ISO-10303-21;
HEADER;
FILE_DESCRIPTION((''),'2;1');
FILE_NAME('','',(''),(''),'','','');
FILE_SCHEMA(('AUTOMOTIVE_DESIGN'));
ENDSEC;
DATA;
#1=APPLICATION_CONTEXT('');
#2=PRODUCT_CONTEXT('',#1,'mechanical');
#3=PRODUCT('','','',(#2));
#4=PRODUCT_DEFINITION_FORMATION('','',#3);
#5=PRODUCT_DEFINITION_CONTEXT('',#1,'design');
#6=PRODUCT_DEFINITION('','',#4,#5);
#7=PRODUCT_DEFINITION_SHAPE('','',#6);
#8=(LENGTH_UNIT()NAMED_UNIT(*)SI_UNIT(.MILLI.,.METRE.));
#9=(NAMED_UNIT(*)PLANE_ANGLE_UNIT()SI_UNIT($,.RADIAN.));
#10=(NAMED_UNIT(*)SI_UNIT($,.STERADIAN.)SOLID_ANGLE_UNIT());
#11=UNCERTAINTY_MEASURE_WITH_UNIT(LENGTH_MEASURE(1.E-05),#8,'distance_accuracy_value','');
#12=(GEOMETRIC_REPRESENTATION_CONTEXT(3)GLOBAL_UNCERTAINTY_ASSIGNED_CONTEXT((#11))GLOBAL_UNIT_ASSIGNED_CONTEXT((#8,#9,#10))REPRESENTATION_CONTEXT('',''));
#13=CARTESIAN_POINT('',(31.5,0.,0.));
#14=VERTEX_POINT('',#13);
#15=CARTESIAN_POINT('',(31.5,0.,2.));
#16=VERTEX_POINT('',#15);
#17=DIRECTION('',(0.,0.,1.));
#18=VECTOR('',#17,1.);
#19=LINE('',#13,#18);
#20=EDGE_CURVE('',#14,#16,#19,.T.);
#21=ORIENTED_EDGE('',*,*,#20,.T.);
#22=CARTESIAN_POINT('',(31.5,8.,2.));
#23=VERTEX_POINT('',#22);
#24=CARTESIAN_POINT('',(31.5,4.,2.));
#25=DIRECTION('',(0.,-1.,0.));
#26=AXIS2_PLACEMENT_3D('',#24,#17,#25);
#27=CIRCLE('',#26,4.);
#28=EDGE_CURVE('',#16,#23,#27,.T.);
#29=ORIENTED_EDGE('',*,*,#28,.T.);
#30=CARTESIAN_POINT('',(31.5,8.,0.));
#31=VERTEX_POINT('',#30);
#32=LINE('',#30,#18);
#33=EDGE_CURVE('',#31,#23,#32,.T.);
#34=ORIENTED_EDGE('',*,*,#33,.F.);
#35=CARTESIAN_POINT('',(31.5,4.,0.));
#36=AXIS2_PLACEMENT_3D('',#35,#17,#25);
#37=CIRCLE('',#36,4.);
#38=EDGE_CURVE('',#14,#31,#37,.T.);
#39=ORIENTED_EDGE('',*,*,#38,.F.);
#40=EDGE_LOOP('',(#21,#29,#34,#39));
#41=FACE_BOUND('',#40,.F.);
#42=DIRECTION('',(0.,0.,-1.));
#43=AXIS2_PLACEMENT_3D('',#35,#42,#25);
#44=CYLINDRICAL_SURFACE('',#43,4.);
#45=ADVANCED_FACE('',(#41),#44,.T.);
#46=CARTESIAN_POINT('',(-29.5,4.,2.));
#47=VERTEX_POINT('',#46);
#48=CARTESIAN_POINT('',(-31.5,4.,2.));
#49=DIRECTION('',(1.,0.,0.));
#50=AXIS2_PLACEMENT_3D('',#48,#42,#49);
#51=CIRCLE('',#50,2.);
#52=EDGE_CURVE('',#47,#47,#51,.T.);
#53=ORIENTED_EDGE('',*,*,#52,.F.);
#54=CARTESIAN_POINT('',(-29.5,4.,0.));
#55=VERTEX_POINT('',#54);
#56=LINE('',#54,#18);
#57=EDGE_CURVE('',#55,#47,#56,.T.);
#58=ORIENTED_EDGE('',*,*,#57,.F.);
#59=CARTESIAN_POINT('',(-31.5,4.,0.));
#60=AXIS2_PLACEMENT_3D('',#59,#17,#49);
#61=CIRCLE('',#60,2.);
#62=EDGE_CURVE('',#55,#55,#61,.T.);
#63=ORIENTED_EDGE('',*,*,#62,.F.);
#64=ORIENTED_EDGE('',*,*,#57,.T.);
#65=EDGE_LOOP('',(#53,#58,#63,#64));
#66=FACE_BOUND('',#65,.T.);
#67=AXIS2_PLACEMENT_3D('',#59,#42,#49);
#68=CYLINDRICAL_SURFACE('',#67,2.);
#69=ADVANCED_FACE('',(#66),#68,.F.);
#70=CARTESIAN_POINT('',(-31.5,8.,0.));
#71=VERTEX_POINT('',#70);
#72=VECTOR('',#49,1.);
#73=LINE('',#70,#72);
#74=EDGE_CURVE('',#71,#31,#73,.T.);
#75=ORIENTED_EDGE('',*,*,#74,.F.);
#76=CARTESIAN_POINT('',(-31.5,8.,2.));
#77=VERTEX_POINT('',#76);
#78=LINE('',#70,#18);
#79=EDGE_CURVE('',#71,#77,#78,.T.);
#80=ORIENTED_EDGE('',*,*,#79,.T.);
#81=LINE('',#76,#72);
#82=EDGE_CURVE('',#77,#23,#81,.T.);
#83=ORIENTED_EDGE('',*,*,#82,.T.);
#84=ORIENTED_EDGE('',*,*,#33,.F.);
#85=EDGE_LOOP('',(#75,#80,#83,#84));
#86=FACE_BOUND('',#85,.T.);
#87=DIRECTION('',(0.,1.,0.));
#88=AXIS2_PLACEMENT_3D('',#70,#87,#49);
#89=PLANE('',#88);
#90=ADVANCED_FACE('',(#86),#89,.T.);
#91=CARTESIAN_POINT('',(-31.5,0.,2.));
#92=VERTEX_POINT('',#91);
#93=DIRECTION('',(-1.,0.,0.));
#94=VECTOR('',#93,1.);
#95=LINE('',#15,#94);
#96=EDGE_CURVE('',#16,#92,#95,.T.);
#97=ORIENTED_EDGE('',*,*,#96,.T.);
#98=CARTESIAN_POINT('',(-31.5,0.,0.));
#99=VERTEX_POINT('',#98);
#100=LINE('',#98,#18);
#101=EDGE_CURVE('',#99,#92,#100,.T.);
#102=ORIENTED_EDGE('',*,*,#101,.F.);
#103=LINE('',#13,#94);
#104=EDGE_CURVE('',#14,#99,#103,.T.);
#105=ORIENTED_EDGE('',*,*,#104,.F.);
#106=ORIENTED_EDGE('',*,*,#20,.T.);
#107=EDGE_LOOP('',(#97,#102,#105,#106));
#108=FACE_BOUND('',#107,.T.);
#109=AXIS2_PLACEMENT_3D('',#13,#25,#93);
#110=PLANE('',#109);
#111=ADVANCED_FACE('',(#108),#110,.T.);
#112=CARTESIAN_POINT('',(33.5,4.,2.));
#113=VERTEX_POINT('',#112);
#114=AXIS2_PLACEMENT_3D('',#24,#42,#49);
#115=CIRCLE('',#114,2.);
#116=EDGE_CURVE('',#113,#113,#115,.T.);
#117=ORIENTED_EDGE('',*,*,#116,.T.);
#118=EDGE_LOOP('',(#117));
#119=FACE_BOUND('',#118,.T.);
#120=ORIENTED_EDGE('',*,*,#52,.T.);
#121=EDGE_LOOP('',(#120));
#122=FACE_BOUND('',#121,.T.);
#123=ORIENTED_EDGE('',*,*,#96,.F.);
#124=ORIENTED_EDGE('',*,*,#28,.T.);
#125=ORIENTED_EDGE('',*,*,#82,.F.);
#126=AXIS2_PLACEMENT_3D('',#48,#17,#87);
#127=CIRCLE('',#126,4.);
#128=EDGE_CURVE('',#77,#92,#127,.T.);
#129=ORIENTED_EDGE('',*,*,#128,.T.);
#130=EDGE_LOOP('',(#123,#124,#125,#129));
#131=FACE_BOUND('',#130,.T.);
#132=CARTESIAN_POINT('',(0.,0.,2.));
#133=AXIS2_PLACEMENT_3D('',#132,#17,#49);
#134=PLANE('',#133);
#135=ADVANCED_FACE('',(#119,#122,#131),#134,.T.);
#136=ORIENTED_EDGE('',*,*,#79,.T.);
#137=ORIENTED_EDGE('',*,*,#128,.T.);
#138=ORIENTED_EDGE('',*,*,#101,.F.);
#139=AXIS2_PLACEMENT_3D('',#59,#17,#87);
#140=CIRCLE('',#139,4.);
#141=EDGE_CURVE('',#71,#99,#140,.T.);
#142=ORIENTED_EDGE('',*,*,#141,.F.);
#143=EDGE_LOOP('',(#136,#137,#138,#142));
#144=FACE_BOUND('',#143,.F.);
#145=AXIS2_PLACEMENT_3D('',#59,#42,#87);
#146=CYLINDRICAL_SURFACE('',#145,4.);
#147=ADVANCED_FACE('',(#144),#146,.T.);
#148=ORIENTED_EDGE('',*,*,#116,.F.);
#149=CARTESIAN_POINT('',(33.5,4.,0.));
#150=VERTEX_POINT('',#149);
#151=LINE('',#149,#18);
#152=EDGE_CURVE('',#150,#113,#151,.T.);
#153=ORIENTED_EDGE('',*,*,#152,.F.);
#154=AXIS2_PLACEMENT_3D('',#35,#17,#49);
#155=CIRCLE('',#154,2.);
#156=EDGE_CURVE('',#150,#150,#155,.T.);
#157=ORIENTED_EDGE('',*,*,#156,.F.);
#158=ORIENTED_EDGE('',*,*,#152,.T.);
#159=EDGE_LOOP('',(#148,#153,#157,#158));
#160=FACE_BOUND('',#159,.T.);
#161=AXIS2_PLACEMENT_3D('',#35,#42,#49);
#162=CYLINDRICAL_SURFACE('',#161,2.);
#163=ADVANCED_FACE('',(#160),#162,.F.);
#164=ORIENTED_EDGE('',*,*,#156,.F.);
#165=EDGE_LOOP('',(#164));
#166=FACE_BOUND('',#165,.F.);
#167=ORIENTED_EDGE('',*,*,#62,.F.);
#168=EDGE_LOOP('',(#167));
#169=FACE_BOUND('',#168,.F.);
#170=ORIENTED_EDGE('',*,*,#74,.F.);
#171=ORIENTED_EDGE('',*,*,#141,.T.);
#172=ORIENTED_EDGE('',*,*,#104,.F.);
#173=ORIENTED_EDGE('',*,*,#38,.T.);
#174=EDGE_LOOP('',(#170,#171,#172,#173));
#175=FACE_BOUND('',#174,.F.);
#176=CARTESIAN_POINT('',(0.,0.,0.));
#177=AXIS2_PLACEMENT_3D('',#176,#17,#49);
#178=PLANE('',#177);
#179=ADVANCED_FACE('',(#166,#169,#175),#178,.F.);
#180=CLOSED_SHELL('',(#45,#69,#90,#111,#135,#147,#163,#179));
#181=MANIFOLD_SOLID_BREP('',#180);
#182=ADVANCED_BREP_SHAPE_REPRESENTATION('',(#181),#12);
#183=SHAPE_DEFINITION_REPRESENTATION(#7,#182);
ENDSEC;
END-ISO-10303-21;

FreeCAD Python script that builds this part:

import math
import FreeCAD as App
import Part
import Sketcher
Q = App.Units.Quantity

doc = App.newDocument("Part")
params = doc.addObject("Spreadsheet::Sheet", "Params")
for row, (alias, value) in enumerate([
    ("sketch1_diameter", "4 mm"),
    ("sketch1_radius", "4 mm"),
    ("sketch1_width", "63 mm"),
    ("pad1_length", "2 mm"),
], start=1):
    params.set(f"A{row}", alias)
    params.set(f"B{row}", "=" + value)
    params.setAlias(f"B{row}", alias)

body = doc.addObject("PartDesign::Body", "Body")

sketch1 = body.newObject("Sketcher::SketchObject", "Sketch")
sketch1.AttachmentSupport = (doc.getObject("XY_Plane"), [""])
sketch1.MapMode = "FlatFace"
sketch1.addGeometry([
    Part.LineSegment(App.Vector(31.5, 8, 0), App.Vector(-31.5, 8, 0)),
    Part.ArcOfCircle(Part.Circle(App.Vector(-31.5, 4, 0), App.Vector(0, 0, 1), 4), math.radians(90), math.radians(270)),
    Part.LineSegment(App.Vector(-31.5, 0, 0), App.Vector(31.5, 0, 0)),
    Part.ArcOfCircle(Part.Circle(App.Vector(31.5, 4, 0), App.Vector(0, 0, 1), 4), math.radians(-90), math.radians(90)),
    Part.Circle(App.Vector(31.5, 4, 0), App.Vector(0, 0, 1), 2),
    Part.Circle(App.Vector(-31.5, 4, 0), App.Vector(0, 0, 1), 2),
], False)
sketch1.addConstraint([
    Sketcher.Constraint("Tangent", 0, 2, 1, 1),
    Sketcher.Constraint("Tangent", 1, 2, 2, 1),
    Sketcher.Constraint("Tangent", 2, 2, 3, 1),
    Sketcher.Constraint("Tangent", 3, 2, 0, 1),
    Sketcher.Constraint("Horizontal", 0),
    Sketcher.Constraint("Horizontal", 2),
    Sketcher.Constraint("Coincident", 4, 3, 3, 3),
    Sketcher.Constraint("Coincident", 5, 3, 1, 3),
    Sketcher.Constraint("Equal", 4, 5),
    Sketcher.Constraint("Symmetric", 1, 2, 2, 2, -1, 1),
    Sketcher.Constraint("Diameter", 4, Q("4 mm")),
    Sketcher.Constraint("Radius", 1, Q("4 mm")),
    Sketcher.Constraint("DistanceX", 0, 2, 0, 1, Q("63 mm")),
])
sketch1.setExpression("Constraints[10]", "Params.sketch1_diameter")
sketch1.setExpression("Constraints[11]", "Params.sketch1_radius")
sketch1.setExpression("Constraints[12]", "Params.sketch1_width")
pad1 = body.newObject("PartDesign::Pad", "Pad")
pad1.Profile = sketch1
pad1.setExpression("Length", "Params.pad1_length")

doc.recompute()
